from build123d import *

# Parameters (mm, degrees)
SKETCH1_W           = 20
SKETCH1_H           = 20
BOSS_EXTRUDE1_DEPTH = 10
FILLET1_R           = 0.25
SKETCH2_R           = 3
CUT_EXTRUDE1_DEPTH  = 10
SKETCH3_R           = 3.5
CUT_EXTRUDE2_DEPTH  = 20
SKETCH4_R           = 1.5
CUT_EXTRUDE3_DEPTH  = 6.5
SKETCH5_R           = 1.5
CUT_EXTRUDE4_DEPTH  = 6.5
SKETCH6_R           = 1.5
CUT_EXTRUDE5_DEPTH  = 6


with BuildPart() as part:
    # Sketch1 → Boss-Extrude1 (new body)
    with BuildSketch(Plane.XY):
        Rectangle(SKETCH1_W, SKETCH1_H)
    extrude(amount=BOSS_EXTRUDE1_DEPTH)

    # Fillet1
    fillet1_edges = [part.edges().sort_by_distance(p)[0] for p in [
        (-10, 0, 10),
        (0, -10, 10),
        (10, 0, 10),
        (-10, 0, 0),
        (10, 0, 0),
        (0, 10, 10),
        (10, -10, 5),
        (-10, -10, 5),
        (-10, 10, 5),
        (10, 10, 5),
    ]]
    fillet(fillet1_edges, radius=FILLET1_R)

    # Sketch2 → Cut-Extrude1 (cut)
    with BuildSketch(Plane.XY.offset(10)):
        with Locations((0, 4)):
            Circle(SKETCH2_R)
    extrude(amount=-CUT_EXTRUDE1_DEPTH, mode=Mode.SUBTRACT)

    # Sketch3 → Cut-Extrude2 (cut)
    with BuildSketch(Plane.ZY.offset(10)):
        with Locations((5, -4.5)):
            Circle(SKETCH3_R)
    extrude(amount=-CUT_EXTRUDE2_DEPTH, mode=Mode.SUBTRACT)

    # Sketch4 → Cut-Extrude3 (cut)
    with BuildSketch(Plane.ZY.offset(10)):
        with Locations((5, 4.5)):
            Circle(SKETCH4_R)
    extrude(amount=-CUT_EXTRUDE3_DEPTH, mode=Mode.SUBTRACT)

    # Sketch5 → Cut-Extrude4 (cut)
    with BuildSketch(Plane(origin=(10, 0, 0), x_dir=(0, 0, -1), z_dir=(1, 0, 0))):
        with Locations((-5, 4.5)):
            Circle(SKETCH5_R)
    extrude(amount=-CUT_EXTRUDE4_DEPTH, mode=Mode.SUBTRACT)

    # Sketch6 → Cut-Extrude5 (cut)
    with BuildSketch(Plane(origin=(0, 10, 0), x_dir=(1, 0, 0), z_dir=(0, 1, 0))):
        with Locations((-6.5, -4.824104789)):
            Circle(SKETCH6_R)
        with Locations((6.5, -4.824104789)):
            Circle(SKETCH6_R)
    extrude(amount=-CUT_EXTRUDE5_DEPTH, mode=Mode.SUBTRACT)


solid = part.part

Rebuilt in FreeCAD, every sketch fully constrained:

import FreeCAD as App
import Part
import Sketcher

V = App.Vector
Q = App.Units.Quantity


def edges_at(feature, points):
    """Names of the edges that pass closest to the given points."""
    edges = feature.Shape.Edges
    near = lambda p: min(range(len(edges)), key=lambda i: edges[i].distToShape(Part.Vertex(*p))[0])
    return sorted({f"Edge{near(p) + 1}" for p in points})

doc = App.newDocument("Part")
body = doc.addObject("PartDesign::Body", "Body")

sketch1 = body.newObject("Sketcher::SketchObject", "Sketch")
sketch1.AttachmentSupport = (doc.getObject("XY_Plane"), [""])
sketch1.MapMode = "FlatFace"
sketch1.addGeometry([
    Part.LineSegment(V(-10, 10, 0), V(-10, -10, 0)),
    Part.LineSegment(V(-10, -10, 0), V(10, -10, 0)),
    Part.LineSegment(V(10, -10, 0), V(10, 10, 0)),
    Part.LineSegment(V(10, 10, 0), V(-10, 10, 0)),
], False)
sketch1.addConstraint([
    Sketcher.Constraint("Coincident", 0, 2, 1, 1),
    Sketcher.Constraint("Coincident", 1, 2, 2, 1),
    Sketcher.Constraint("Coincident", 2, 2, 3, 1),
    Sketcher.Constraint("Coincident", 3, 2, 0, 1),
    Sketcher.Constraint("Vertical", 0),
    Sketcher.Constraint("Horizontal", 1),
    Sketcher.Constraint("Vertical", 2),
    Sketcher.Constraint("Horizontal", 3),
    Sketcher.Constraint("Symmetric", 0, 2, 2, 2, -1, 1),
    Sketcher.Constraint("Equal", 3, 0),
    Sketcher.Constraint("DistanceX", 1, 1, 1, 2, Q("20 mm")),
])
pad1 = body.newObject("PartDesign::Pad", "Pad")
pad1.Profile = sketch1
pad1.Length = 10
doc.recompute()

fillet = body.newObject("PartDesign::Fillet", "Fillet")
fillet.Base = (pad1, edges_at(pad1, [
    (-10, 0, 10),
    (0, -10, 10),
    (10, 0, 10),
    (-10, 0, 0),
    (10, 0, 0),
    (0, 10, 10),
    (10, -10, 5),
    (-10, -10, 5),
    (-10, 10, 5),
    (10, 10, 5),
]))
fillet.Radius = 0.25

sketch2 = body.newObject("Sketcher::SketchObject", "Sketch001")
sketch2.AttachmentSupport = (doc.getObject("XY_Plane"), [""])
sketch2.MapMode = "FlatFace"
sketch2.AttachmentOffset = App.Placement(V(0, 0, 10), App.Rotation())
sketch2.addGeometry(Part.Circle(V(0, 4, 0), V(0, 0, 1), 3), False)
sketch2.addConstraint([
    Sketcher.Constraint("PointOnObject", 0, 3, -2),
    Sketcher.Constraint("Diameter", 0, Q("6 mm")),
    Sketcher.Constraint("DistanceY", -1, 1, 0, 3, Q("4 mm")),
])
pocket1 = body.newObject("PartDesign::Pocket", "Pocket")
pocket1.Profile = sketch2
pocket1.Length = 10

sketch3 = body.newObject("Sketcher::SketchObject", "Sketch002")
sketch3.AttachmentSupport = (doc.getObject("YZ_Plane"), [""])
sketch3.MapMode = "FlatFace"
sketch3.AttachmentOffset = App.Placement(V(0, 0, -10), App.Rotation())
sketch3.addGeometry(Part.Circle(V(-4.5, 5, 0), V(0, 0, 1), 3.5), False)
sketch3.addConstraint([
    Sketcher.Constraint("Diameter", 0, Q("7 mm")),
    Sketcher.Constraint("DistanceY", -1, 1, 0, 3, Q("5 mm")),
    Sketcher.Constraint("DistanceX", 0, 3, -1, 1, Q("4.5 mm")),
])
pocket2 = body.newObject("PartDesign::Pocket", "Pocket001")
pocket2.Profile = sketch3
pocket2.Length = 20
pocket2.Reversed = True

sketch4 = body.newObject("Sketcher::SketchObject", "Sketch003")
sketch4.AttachmentSupport = (doc.getObject("YZ_Plane"), [""])
sketch4.MapMode = "FlatFace"
sketch4.AttachmentOffset = App.Placement(V(0, 0, -10), App.Rotation())
sketch4.addGeometry(Part.Circle(V(4.5, 5, 0), V(0, 0, 1), 1.5), False)
sketch4.addConstraint([
    Sketcher.Constraint("Diameter", 0, Q("3 mm")),
    Sketcher.Constraint("DistanceY", -1, 1, 0, 3, Q("5 mm")),
    Sketcher.Constraint("DistanceX", -1, 1, 0, 3, Q("4.5 mm")),
])
pocket3 = body.newObject("PartDesign::Pocket", "Pocket002")
pocket3.Profile = sketch4
pocket3.Length = 6.5
pocket3.Reversed = True

sketch5 = body.newObject("Sketcher::SketchObject", "Sketch004")
sketch5.AttachmentSupport = (doc.getObject("YZ_Plane"), [""])
sketch5.MapMode = "FlatFace"
sketch5.AttachmentOffset = App.Placement(V(0, 0, 10), App.Rotation())
sketch5.addGeometry(Part.Circle(V(4.5, 5, 0), V(0, 0, 1), 1.5), False)
sketch5.addConstraint([
    Sketcher.Constraint("Diameter", 0, Q("3 mm")),
    Sketcher.Constraint("DistanceY", -1, 1, 0, 3, Q("5 mm")),
    Sketcher.Constraint("DistanceX", -1, 1, 0, 3, Q("4.5 mm")),
])
pocket4 = body.newObject("PartDesign::Pocket", "Pocket003")
pocket4.Profile = sketch5
pocket4.Length = 6.5

sketch6 = body.newObject("Sketcher::SketchObject", "Sketch005")
sketch6.AttachmentSupport = (doc.getObject("XZ_Plane"), [""])
sketch6.MapMode = "FlatFace"
sketch6.AttachmentOffset = App.Placement(V(0, 0, -10), App.Rotation())
sketch6.addGeometry([
    Part.Circle(V(-6.5, 4.8, 0), V(0, 0, 1), 1.5),
    Part.Circle(V(6.5, 4.8, 0), V(0, 0, 1), 1.5),
], False)
sketch6.addConstraint([
    Sketcher.Constraint("Equal", 0, 1),
    Sketcher.Constraint("Symmetric", 0, 3, 1, 3, -2),
    Sketcher.Constraint("Diameter", 0, Q("3 mm")),
    Sketcher.Constraint("DistanceX", 0, 3, 1, 3, Q("13 mm")),
    Sketcher.Constraint("DistanceY", -1, 1, 0, 3, Q("4.824105 mm")),
])
pocket5 = body.newObject("PartDesign::Pocket", "Pocket004")
pocket5.Profile = sketch6
pocket5.Length = 6
pocket5.Reversed = True

doc.recompute()
